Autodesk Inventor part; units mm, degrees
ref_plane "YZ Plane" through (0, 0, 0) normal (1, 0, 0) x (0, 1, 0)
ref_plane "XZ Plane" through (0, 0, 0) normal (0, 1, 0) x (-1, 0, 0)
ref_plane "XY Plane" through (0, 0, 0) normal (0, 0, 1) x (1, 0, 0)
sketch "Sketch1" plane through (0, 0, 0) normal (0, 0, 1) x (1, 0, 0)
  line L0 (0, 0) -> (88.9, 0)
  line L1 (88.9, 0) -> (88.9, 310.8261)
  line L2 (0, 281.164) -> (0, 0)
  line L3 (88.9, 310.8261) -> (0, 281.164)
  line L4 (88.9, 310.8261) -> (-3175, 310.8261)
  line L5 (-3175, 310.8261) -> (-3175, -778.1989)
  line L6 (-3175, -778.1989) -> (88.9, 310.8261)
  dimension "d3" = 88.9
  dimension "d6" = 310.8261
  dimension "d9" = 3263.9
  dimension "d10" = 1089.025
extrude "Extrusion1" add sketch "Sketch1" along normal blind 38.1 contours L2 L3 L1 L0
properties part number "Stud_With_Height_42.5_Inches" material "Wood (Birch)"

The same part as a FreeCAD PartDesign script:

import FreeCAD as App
import Part
import Sketcher
Q = App.Units.Quantity


def add_polygon(sketch, points):
    """Adds a closed chain of lines whose ends are joined by coincident constraints."""
    first, n = sketch.GeometryCount, len(points)
    for a, b in zip(points, points[1:] + points[:1]):
        sketch.addGeometry(Part.LineSegment(App.Vector(*a, 0), App.Vector(*b, 0)), False)
    for i in range(n):
        sketch.addConstraint(Sketcher.Constraint("Coincident", first + i, 2, first + (i + 1) % n, 1))

doc = App.newDocument("Part")
body = doc.addObject("PartDesign::Body", "Body")

sketch1 = body.newObject("Sketcher::SketchObject", "Sketch")
sketch1.AttachmentSupport = (doc.getObject("XY_Plane"), [""])
sketch1.MapMode = "FlatFace"
add_polygon(sketch1, [(0, 281), (0, 0), (89, 0), (89, 311)])
sketch1.addConstraint([
    Sketcher.Constraint("Vertical", 0),
    Sketcher.Constraint("Horizontal", 1),
    Sketcher.Constraint("Vertical", 2),
    Sketcher.Constraint("Coincident", 0, 2, -1, 1),
    Sketcher.Constraint("DistanceX", 1, 1, 1, 2, Q("3.5 in")),
    Sketcher.Constraint("DistanceY", 2, 1, 2, 2, Q("310.826 mm")),
    Sketcher.Constraint("DistanceY", 0, 2, 0, 1, Q("281.164 mm")),
])
pad1 = body.newObject("PartDesign::Pad", "Pad")
pad1.Profile = sketch1
pad1.Length = Q("1.5 in")

doc.recompute()
